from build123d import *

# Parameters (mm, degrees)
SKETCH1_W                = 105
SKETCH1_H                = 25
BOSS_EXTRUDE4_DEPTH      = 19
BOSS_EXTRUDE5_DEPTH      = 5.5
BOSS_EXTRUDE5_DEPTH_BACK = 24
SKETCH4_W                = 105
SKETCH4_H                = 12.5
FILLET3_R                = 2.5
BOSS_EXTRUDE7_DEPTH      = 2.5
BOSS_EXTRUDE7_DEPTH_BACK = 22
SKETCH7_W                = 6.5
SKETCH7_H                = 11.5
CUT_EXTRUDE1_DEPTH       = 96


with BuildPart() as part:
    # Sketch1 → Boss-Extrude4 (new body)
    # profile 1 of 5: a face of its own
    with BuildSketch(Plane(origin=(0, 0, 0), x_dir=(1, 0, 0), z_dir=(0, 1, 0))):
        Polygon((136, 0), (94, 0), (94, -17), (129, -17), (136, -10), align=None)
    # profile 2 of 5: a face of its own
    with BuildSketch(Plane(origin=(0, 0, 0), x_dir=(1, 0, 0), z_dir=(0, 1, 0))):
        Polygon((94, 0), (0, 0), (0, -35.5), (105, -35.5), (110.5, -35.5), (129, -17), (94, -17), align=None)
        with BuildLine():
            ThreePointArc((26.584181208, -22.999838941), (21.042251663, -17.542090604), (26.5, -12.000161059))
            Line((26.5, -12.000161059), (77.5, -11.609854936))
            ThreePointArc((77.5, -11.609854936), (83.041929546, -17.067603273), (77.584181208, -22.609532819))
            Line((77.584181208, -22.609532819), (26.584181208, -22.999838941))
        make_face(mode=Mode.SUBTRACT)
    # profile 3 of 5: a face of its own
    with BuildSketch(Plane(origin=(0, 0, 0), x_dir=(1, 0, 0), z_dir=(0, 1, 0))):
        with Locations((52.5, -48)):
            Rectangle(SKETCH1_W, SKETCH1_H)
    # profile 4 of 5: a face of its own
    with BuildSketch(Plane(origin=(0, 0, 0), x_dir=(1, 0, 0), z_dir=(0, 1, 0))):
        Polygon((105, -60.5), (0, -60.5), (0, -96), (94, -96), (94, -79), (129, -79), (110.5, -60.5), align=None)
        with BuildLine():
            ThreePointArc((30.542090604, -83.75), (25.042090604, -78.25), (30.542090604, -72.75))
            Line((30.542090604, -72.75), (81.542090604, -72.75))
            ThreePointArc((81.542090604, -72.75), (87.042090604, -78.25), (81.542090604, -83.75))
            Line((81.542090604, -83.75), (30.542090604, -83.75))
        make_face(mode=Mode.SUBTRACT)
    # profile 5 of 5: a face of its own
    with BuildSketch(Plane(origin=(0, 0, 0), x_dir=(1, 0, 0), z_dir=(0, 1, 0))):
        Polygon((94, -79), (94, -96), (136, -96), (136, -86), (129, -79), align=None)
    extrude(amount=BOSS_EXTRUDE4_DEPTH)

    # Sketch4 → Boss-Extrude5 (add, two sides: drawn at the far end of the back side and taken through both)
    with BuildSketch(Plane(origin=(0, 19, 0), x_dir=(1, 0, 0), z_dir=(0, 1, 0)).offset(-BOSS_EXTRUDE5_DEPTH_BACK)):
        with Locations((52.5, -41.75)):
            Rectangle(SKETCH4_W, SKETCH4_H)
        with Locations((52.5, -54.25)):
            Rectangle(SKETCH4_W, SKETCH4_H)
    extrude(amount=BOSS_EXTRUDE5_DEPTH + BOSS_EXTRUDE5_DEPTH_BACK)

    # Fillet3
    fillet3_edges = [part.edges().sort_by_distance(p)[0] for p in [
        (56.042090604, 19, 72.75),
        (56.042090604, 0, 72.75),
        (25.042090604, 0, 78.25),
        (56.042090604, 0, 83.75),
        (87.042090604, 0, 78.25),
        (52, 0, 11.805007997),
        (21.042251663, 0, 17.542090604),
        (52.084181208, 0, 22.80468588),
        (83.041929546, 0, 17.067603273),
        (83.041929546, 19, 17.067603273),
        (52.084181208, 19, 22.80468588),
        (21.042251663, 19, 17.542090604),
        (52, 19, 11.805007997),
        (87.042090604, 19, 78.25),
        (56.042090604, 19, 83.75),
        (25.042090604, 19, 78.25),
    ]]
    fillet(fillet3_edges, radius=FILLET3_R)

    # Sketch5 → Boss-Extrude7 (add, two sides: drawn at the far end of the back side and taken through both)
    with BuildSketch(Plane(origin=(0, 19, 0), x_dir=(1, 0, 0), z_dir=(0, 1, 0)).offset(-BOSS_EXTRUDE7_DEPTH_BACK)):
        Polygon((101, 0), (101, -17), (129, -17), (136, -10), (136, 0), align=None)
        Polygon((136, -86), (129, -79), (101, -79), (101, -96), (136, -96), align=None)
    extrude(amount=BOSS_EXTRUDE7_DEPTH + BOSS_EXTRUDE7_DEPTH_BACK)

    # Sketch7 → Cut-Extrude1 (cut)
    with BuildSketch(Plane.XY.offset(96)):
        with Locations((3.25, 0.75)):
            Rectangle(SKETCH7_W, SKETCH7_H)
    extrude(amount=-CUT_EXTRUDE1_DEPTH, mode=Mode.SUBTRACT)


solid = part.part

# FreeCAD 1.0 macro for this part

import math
import FreeCAD as App
import Part
import Sketcher

V = App.Vector


def edges_at(feature, points):
    """Names of the edges that pass closest to the given points."""
    edges = feature.Shape.Edges
    near = lambda p: min(range(len(edges)), key=lambda i: edges[i].distToShape(Part.Vertex(*p))[0])
    return sorted({f"Edge{near(p) + 1}" for p in points})

doc = App.newDocument("Part")
body = doc.addObject("PartDesign::Body", "Body")

# Sketch on XZ plane
sketch1 = doc.addObject("Sketcher::SketchObject", "Sketch")
body.addObject(sketch1)
sketch1.AttachmentSupport = (doc.XZ_Plane, [""])
sketch1.MapMode = "FlatFace"
sketch1.addGeometry(Part.LineSegment(V(136, 0, 0), V(0, 0, 0)), False)
sketch1.addGeometry(Part.LineSegment(V(0, 0, 0), V(0, 96, 0)), False)
sketch1.addGeometry(Part.LineSegment(V(0, 96, 0), V(136, 96, 0)), False)
sketch1.addGeometry(Part.LineSegment(V(136, 96, 0), V(136, 86, 0)), False)
sketch1.addGeometry(Part.LineSegment(V(136, 86, 0), V(110, 60, 0)), False)
sketch1.addGeometry(Part.LineSegment(V(110, 60, 0), V(105, 60, 0)), False)
sketch1.addGeometry(Part.LineSegment(V(105, 60, 0), V(105, 36, 0)), False)
sketch1.addGeometry(Part.LineSegment(V(105, 36, 0), V(110, 36, 0)), False)
sketch1.addGeometry(Part.LineSegment(V(110, 36, 0), V(136, 10, 0)), False)
sketch1.addGeometry(Part.LineSegment(V(136, 10, 0), V(136, 0, 0)), False)
sketch1.addGeometry(Part.ArcOfCircle(Part.Circle(V(27, 18, 0), V(0, 0, 1), 6), math.radians(90), math.radians(270)), False)
sketch1.addGeometry(Part.LineSegment(V(26, 12, 0), V(78, 12, 0)), False)
sketch1.addGeometry(Part.ArcOfCircle(Part.Circle(V(78, 17, 0), V(0, 0, 1), 6), math.radians(-90), math.radians(90)), False)
sketch1.addGeometry(Part.LineSegment(V(78, 23, 0), V(27, 23, 0)), False)
sketch1.addGeometry(Part.ArcOfCircle(Part.Circle(V(31, 78, 0), V(0, 0, 1), 6), math.radians(90), math.radians(270)), False)
sketch1.addGeometry(Part.LineSegment(V(31, 73, 0), V(82, 73, 0)), False)
sketch1.addGeometry(Part.ArcOfCircle(Part.Circle(V(82, 78, 0), V(0, 0, 1), 6), math.radians(-90), math.radians(90)), False)
sketch1.addGeometry(Part.LineSegment(V(82, 84, 0), V(31, 84, 0)), False)
sketch1.addConstraint(Sketcher.Constraint("Coincident", 0, 2, 1, 1))
sketch1.addConstraint(Sketcher.Constraint("Coincident", 1, 2, 2, 1))
sketch1.addConstraint(Sketcher.Constraint("Coincident", 2, 2, 3, 1))
sketch1.addConstraint(Sketcher.Constraint("Coincident", 3, 2, 4, 1))
sketch1.addConstraint(Sketcher.Constraint("Coincident", 4, 2, 5, 1))
sketch1.addConstraint(Sketcher.Constraint("Coincident", 5, 2, 6, 1))
sketch1.addConstraint(Sketcher.Constraint("Coincident", 6, 2, 7, 1))
sketch1.addConstraint(Sketcher.Constraint("Coincident", 7, 2, 8, 1))
sketch1.addConstraint(Sketcher.Constraint("Coincident", 8, 2, 9, 1))
sketch1.addConstraint(Sketcher.Constraint("Coincident", 9, 2, 0, 1))
sketch1.addConstraint(Sketcher.Constraint("Tangent", 10, 2, 11, 1))
sketch1.addConstraint(Sketcher.Constraint("Tangent", 11, 2, 12, 1))
sketch1.addConstraint(Sketcher.Constraint("Tangent", 12, 2, 13, 1))
sketch1.addConstraint(Sketcher.Constraint("Tangent", 13, 2, 10, 1))
sketch1.addConstraint(Sketcher.Constraint("Tangent", 14, 2, 15, 1))
sketch1.addConstraint(Sketcher.Constraint("Tangent", 15, 2, 16, 1))
sketch1.addConstraint(Sketcher.Constraint("Tangent", 16, 2, 17, 1))
sketch1.addConstraint(Sketcher.Constraint("Tangent", 17, 2, 14, 1))
sketch1.addConstraint(Sketcher.Constraint("Horizontal", 0))
sketch1.addConstraint(Sketcher.Constraint("Vertical", 1))
sketch1.addConstraint(Sketcher.Constraint("Horizontal", 2))
sketch1.addConstraint(Sketcher.Constraint("Vertical", 3))
sketch1.addConstraint(Sketcher.Constraint("Horizontal", 5))
sketch1.addConstraint(Sketcher.Constraint("Vertical", 6))
sketch1.addConstraint(Sketcher.Constraint("Horizontal", 7))
sketch1.addConstraint(Sketcher.Constraint("Vertical", 9))
sketch1.addConstraint(Sketcher.Constraint("Horizontal", 15))
sketch1.addConstraint(Sketcher.Constraint("Horizontal", 17))
sketch1.addConstraint(Sketcher.Constraint("Coincident", 0, 2, -1, 1))
sketch1.addConstraint(Sketcher.Constraint("Equal", 10, 12))
sketch1.addConstraint(Sketcher.Constraint("Equal", 12, 14))
sketch1.addConstraint(Sketcher.Constraint("Perpendicular", 4, 8))
sketch1.addConstraint(Sketcher.Constraint("Vertical", 4, 2, 7, 2))
sketch1.addConstraint(Sketcher.Constraint("Vertical", 3, 2, 8, 2))
sketch1.addConstraint(Sketcher.Constraint("Equal", 3, 9))
sketch1.addConstraint(Sketcher.Constraint("Equal", 4, 8))
sketch1.addConstraint(Sketcher.Constraint("Radius", 10, 5.5))
sketch1.addConstraint(Sketcher.Constraint("DistanceX", 0, 2, 0, 1, 136.0))
sketch1.addConstraint(Sketcher.Constraint("DistanceX", 15, 1, 15, 2, 51.0))
sketch1.addConstraint(Sketcher.Constraint("DistanceY", 1, 1, 1, 2, 96.0))
sketch1.addConstraint(Sketcher.Constraint("DistanceY", 3, 2, 3, 1, 10.0))
sketch1.addConstraint(Sketcher.Constraint("DistanceY", 6, 2, 6, 1, 25.0))
sketch1.addConstraint(Sketcher.Constraint("DistanceX", 5, 2, 5, 1, 5.5))
sketch1.addConstraint(Sketcher.Constraint("DistanceX", 10, 3, 12, 3, 51.0))
sketch1.addConstraint(Sketcher.Constraint("DistanceX", 10, 3, 14, 3, 4.0))
sketch1.addConstraint(Sketcher.Constraint("DistanceX", 11, 2, 7, 2, 33.0))
sketch1.addConstraint(Sketcher.Constraint("DistanceY", -1, 1, 10, 3, 17.5))
sketch1.addConstraint(Sketcher.Constraint("DistanceY", -1, 1, 14, 3, 78.25))
sketch1.addConstraint(Sketcher.Constraint("DistanceX", -1, 1, 10, 3, 26.542091))
pad1 = doc.addObject("PartDesign::Pad", "Pad")
body.addObject(pad1)
pad1.Profile = sketch1
pad1.Length = 19
pad1.Reversed = True

# Sketch on XZ plane
sketch2 = doc.addObject("Sketcher::SketchObject", "Sketch001")
body.addObject(sketch2)
sketch2.AttachmentSupport = (doc.XZ_Plane, [""])
sketch2.MapMode = "FlatFace"
sketch2.AttachmentOffset = App.Placement(V(0, 0, -19), App.Rotation())
sketch2.addGeometry(Part.LineSegment(V(0, 36, 0), V(0, 60, 0)), False)
sketch2.addGeometry(Part.LineSegment(V(0, 60, 0), V(105, 60, 0)), False)
sketch2.addGeometry(Part.LineSegment(V(105, 60, 0), V(105, 36, 0)), False)
sketch2.addGeometry(Part.LineSegment(V(105, 36, 0), V(0, 36, 0)), False)
sketch2.addConstraint(Sketcher.Constraint("Coincident", 0, 2, 1, 1))
sketch2.addConstraint(Sketcher.Constraint("Coincident", 1, 2, 2, 1))
sketch2.addConstraint(Sketcher.Constraint("Coincident", 2, 2, 3, 1))
sketch2.addConstraint(Sketcher.Constraint("Coincident", 3, 2, 0, 1))
sketch2.addConstraint(Sketcher.Constraint("Vertical", 0))
sketch2.addConstraint(Sketcher.Constraint("Horizontal", 1))
sketch2.addConstraint(Sketcher.Constraint("Vertical", 2))
sketch2.addConstraint(Sketcher.Constraint("Horizontal", 3))
sketch2.addConstraint(Sketcher.Constraint("PointOnObject", 0, 2, -2))
sketch2.addConstraint(Sketcher.Constraint("DistanceX", 1, 1, 1, 2, 105.0))
sketch2.addConstraint(Sketcher.Constraint("DistanceY", 0, 1, 0, 2, 25.0))
sketch2.addConstraint(Sketcher.Constraint("DistanceY", -1, 1, 0, 2, 60.5))
pad2 = doc.addObject("PartDesign::Pad", "Pad001")
body.addObject(pad2)
pad2.Profile = sketch2
pad2.Type = "TwoLengths"
pad2.Length = 5.5
pad2.Length2 = 24
pad2.Reversed = True
doc.recompute()

fillet = doc.addObject("PartDesign::Fillet", "Fillet")
body.addObject(fillet)
fillet.Base = (pad2, edges_at(pad2, [
    (56.042, 19, 72.75),
    (56.042, 0, 72.75),
    (25.042, 0, 78.25),
    (56.042, 0, 83.75),
    (87.042, 0, 78.25),
    (52, 0, 11.805),
    (21.042, 0, 17.542),
    (52.084, 0, 22.805),
    (83.042, 0, 17.068),
    (83.042, 19, 17.068),
    (52.084, 19, 22.805),
    (21.042, 19, 17.542),
    (52, 19, 11.805),
    (87.042, 19, 78.25),
    (56.042, 19, 83.75),
    (25.042, 19, 78.25),
]))
fillet.Radius = 2.5

# Sketch on XZ plane
sketch3 = doc.addObject("Sketcher::SketchObject", "Sketch002")
body.addObject(sketch3)
sketch3.AttachmentSupport = (doc.XZ_Plane, [""])
sketch3.MapMode = "FlatFace"
sketch3.AttachmentOffset = App.Placement(V(0, 0, -19), App.Rotation())
sketch3.addGeometry(Part.LineSegment(V(101, 0, 0), V(101, 17, 0)), False)
sketch3.addGeometry(Part.LineSegment(V(101, 17, 0), V(129, 17, 0)), False)
sketch3.addGeometry(Part.LineSegment(V(129, 17, 0), V(136, 10, 0)), False)
sketch3.addGeometry(Part.LineSegment(V(136, 10, 0), V(136, 0, 0)), False)
sketch3.addGeometry(Part.LineSegment(V(136, 0, 0), V(101, 0, 0)), False)
sketch3.addGeometry(Part.LineSegment(V(136, 86, 0), V(129, 79, 0)), False)
sketch3.addGeometry(Part.LineSegment(V(129, 79, 0), V(101, 79, 0)), False)
sketch3.addGeometry(Part.LineSegment(V(101, 79, 0), V(101, 96, 0)), False)
sketch3.addGeometry(Part.LineSegment(V(101, 96, 0), V(136, 96, 0)), False)
sketch3.addGeometry(Part.LineSegment(V(136, 96, 0), V(136, 86, 0)), False)
sketch3.addConstraint(Sketcher.Constraint("Coincident", 0, 2, 1, 1))
sketch3.addConstraint(Sketcher.Constraint("Coincident", 1, 2, 2, 1))
sketch3.addConstraint(Sketcher.Constraint("Coincident", 2, 2, 3, 1))
sketch3.addConstraint(Sketcher.Constraint("Coincident", 3, 2, 4, 1))
sketch3.addConstraint(Sketcher.Constraint("Coincident", 4, 2, 0, 1))
sketch3.addConstraint(Sketcher.Constraint("Coincident", 5, 2, 6, 1))
sketch3.addConstraint(Sketcher.Constraint("Coincident", 6, 2, 7, 1))
sketch3.addConstraint(Sketcher.Constraint("Coincident", 7, 2, 8, 1))
sketch3.addConstraint(Sketcher.Constraint("Coincident", 8, 2, 9, 1))
sketch3.addConstraint(Sketcher.Constraint("Coincident", 9, 2, 5, 1))
sketch3.addConstraint(Sketcher.Constraint("Vertical", 0))
sketch3.addConstraint(Sketcher.Constraint("Horizontal", 1))
sketch3.addConstraint(Sketcher.Constraint("Vertical", 3))
sketch3.addConstraint(Sketcher.Constraint("Horizontal", 4))
sketch3.addConstraint(Sketcher.Constraint("Horizontal", 6))
sketch3.addConstraint(Sketcher.Constraint("Vertical", 7))
sketch3.addConstraint(Sketcher.Constraint("Horizontal", 8))
sketch3.addConstraint(Sketcher.Constraint("Vertical", 9))
sketch3.addConstraint(Sketcher.Constraint("PointOnObject", 3, 2, -1))
sketch3.addConstraint(Sketcher.Constraint("Perpendicular", 2, 5))
sketch3.addConstraint(Sketcher.Constraint("Vertical", 1, 2, 5, 2))
sketch3.addConstraint(Sketcher.Constraint("Vertical", 4, 2, 6, 2))
sketch3.addConstraint(Sketcher.Constraint("Vertical", 3, 2, 8, 2))
sketch3.addConstraint(Sketcher.Constraint("Equal", 0, 7))
sketch3.addConstraint(Sketcher.Constraint("Equal", 3, 9))
sketch3.addConstraint(Sketcher.Constraint("DistanceX", 1, 1, 1, 2, 28.0))
sketch3.addConstraint(Sketcher.Constraint("DistanceX", 4, 2, 4, 1, 35.0))
sketch3.addConstraint(Sketcher.Constraint("DistanceY", 0, 1, 0, 2, 17.0))
sketch3.addConstraint(Sketcher.Constraint("DistanceX", -1, 1, 0, 2, 101.0))
sketch3.addConstraint(Sketcher.Constraint("DistanceY", -1, 1, 5, 2, 79.0))
pad3 = doc.addObject("PartDesign::Pad", "Pad002")
body.addObject(pad3)
pad3.Profile = sketch3
pad3.Type = "TwoLengths"
pad3.Length = 2.5
pad3.Length2 = 22
pad3.Reversed = True

# Sketch on XY plane
sketch4 = doc.addObject("Sketcher::SketchObject", "Sketch003")
body.addObject(sketch4)
sketch4.AttachmentSupport = (doc.XY_Plane, [""])
sketch4.MapMode = "FlatFace"
sketch4.AttachmentOffset = App.Placement(V(0, 0, 96), App.Rotation())
sketch4.addGeometry(Part.LineSegment(V(0, 6, 0), V(0, -5, 0)), False)
sketch4.addGeometry(Part.LineSegment(V(0, -5, 0), V(6, -5, 0)), False)
sketch4.addGeometry(Part.LineSegment(V(6, -5, 0), V(6, 6, 0)), False)
sketch4.addGeometry(Part.LineSegment(V(6, 6, 0), V(0, 6, 0)), False)
sketch4.addConstraint(Sketcher.Constraint("Coincident", 0, 2, 1, 1))
sketch4.addConstraint(Sketcher.Constraint("Coincident", 1, 2, 2, 1))
sketch4.addConstraint(Sketcher.Constraint("Coincident", 2, 2, 3, 1))
sketch4.addConstraint(Sketcher.Constraint("Coincident", 3, 2, 0, 1))
sketch4.addConstraint(Sketcher.Constraint("Vertical", 0))
sketch4.addConstraint(Sketcher.Constraint("Horizontal", 1))
sketch4.addConstraint(Sketcher.Constraint("Vertical", 2))
sketch4.addConstraint(Sketcher.Constraint("Horizontal", 3))
sketch4.addConstraint(Sketcher.Constraint("PointOnObject", 0, 2, -2))
sketch4.addConstraint(Sketcher.Constraint("DistanceX", 1, 1, 1, 2, 6.5))
sketch4.addConstraint(Sketcher.Constraint("DistanceY", 0, 2, 0, 1, 11.5))
sketch4.addConstraint(Sketcher.Constraint("DistanceY", 0, 2, -1, 1, 5.0))
pocket1 = doc.addObject("PartDesign::Pocket", "Pocket")
body.addObject(pocket1)
pocket1.Profile = sketch4
pocket1.Length = 96

doc.recompute()
